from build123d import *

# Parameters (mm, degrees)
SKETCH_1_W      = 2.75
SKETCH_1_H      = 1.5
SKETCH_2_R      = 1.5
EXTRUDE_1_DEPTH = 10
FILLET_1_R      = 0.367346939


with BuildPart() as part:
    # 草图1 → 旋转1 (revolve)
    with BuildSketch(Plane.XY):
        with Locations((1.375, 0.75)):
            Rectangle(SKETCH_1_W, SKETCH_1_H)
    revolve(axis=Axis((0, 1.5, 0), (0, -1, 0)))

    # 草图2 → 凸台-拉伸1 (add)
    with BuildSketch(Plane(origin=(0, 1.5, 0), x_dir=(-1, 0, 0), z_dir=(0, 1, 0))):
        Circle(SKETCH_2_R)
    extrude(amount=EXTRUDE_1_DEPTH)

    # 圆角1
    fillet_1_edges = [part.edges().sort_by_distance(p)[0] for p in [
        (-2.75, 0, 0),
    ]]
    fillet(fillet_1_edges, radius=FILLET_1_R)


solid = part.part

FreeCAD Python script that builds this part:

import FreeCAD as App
import Part
import Sketcher

V = App.Vector
Q = App.Units.Quantity


def edges_at(feature, points):
    """Names of the edges that pass closest to the given points."""
    edges = feature.Shape.Edges
    near = lambda p: min(range(len(edges)), key=lambda i: edges[i].distToShape(Part.Vertex(*p))[0])
    return sorted({f"Edge{near(p) + 1}" for p in points})


def add_polygon(sketch, points):
    """Adds a closed chain of lines whose ends are joined by coincident constraints."""
    first, n = sketch.GeometryCount, len(points)
    for a, b in zip(points, points[1:] + points[:1]):
        sketch.addGeometry(Part.LineSegment(App.Vector(*a, 0), App.Vector(*b, 0)), False)
    for i in range(n):
        sketch.addConstraint(Sketcher.Constraint("Coincident", first + i, 2, first + (i + 1) % n, 1))

doc = App.newDocument("Part")
params = doc.addObject("Spreadsheet::Sheet", "Params")
for row, (alias, value) in enumerate([
    ("sketch1_height", "1.5 mm"),
    ("sketch1_width", "2.75 mm"),
    ("revolution_angle", "360 deg"),
    ("sketch2_diameter", "3 mm"),
    ("pad1_length", "10 mm"),
    ("fillet_radius", "0.367347 mm"),
], start=1):
    params.set(f"A{row}", alias)
    params.set(f"B{row}", "=" + value)
    params.setAlias(f"B{row}", alias)

body = doc.addObject("PartDesign::Body", "Body")

sketch1 = doc.addObject("Sketcher::SketchObject", "Sketch")
body.addObject(sketch1)
sketch1.AttachmentSupport = (doc.XY_Plane, [""])
sketch1.MapMode = "FlatFace"
add_polygon(sketch1, [(0, 1.5), (0, 0), (2.8, 0), (2.8, 1.5)])
sketch1.addConstraint([
    Sketcher.Constraint("Vertical", 0),
    Sketcher.Constraint("Horizontal", 1),
    Sketcher.Constraint("Vertical", 2),
    Sketcher.Constraint("Horizontal", 3),
    Sketcher.Constraint("Coincident", 0, 2, -1, 1),
    Sketcher.Constraint("DistanceY", 0, 2, 0, 1, Q("1.5 mm")),
    Sketcher.Constraint("DistanceX", 1, 1, 1, 2, Q("2.75 mm")),
])
sketch1.setExpression("Constraints[9]", "Params.sketch1_height")
sketch1.setExpression("Constraints[10]", "Params.sketch1_width")
revolution = doc.addObject("PartDesign::Revolution", "Revolution")
body.addObject(revolution)
revolution.Profile = sketch1
revolution.ReferenceAxis = (sketch1, ["V_Axis"])
revolution.setExpression("Angle", "Params.revolution_angle")

sketch2 = doc.addObject("Sketcher::SketchObject", "Sketch001")
body.addObject(sketch2)
sketch2.AttachmentSupport = (doc.XZ_Plane, [""])
sketch2.MapMode = "FlatFace"
sketch2.AttachmentOffset = App.Placement(V(0, 0, -1.5), App.Rotation())
sketch2.addGeometry(Part.Circle(V(0, 0, 0), V(0, 0, 1), 1.5), False)
sketch2.addConstraint([
    Sketcher.Constraint("Coincident", 0, 3, -1, 1),
    Sketcher.Constraint("Diameter", 0, Q("3 mm")),
])
sketch2.setExpression("Constraints[1]", "Params.sketch2_diameter")
pad1 = doc.addObject("PartDesign::Pad", "Pad")
body.addObject(pad1)
pad1.Profile = sketch2
pad1.setExpression("Length", "Params.pad1_length")
pad1.Reversed = True
doc.recompute()

fillet = doc.addObject("PartDesign::Fillet", "Fillet")
body.addObject(fillet)
fillet.Base = (pad1, edges_at(pad1, [(-2.75, 0, 0)]))
fillet.setExpression("Radius", "Params.fillet_radius")

doc.recompute()
